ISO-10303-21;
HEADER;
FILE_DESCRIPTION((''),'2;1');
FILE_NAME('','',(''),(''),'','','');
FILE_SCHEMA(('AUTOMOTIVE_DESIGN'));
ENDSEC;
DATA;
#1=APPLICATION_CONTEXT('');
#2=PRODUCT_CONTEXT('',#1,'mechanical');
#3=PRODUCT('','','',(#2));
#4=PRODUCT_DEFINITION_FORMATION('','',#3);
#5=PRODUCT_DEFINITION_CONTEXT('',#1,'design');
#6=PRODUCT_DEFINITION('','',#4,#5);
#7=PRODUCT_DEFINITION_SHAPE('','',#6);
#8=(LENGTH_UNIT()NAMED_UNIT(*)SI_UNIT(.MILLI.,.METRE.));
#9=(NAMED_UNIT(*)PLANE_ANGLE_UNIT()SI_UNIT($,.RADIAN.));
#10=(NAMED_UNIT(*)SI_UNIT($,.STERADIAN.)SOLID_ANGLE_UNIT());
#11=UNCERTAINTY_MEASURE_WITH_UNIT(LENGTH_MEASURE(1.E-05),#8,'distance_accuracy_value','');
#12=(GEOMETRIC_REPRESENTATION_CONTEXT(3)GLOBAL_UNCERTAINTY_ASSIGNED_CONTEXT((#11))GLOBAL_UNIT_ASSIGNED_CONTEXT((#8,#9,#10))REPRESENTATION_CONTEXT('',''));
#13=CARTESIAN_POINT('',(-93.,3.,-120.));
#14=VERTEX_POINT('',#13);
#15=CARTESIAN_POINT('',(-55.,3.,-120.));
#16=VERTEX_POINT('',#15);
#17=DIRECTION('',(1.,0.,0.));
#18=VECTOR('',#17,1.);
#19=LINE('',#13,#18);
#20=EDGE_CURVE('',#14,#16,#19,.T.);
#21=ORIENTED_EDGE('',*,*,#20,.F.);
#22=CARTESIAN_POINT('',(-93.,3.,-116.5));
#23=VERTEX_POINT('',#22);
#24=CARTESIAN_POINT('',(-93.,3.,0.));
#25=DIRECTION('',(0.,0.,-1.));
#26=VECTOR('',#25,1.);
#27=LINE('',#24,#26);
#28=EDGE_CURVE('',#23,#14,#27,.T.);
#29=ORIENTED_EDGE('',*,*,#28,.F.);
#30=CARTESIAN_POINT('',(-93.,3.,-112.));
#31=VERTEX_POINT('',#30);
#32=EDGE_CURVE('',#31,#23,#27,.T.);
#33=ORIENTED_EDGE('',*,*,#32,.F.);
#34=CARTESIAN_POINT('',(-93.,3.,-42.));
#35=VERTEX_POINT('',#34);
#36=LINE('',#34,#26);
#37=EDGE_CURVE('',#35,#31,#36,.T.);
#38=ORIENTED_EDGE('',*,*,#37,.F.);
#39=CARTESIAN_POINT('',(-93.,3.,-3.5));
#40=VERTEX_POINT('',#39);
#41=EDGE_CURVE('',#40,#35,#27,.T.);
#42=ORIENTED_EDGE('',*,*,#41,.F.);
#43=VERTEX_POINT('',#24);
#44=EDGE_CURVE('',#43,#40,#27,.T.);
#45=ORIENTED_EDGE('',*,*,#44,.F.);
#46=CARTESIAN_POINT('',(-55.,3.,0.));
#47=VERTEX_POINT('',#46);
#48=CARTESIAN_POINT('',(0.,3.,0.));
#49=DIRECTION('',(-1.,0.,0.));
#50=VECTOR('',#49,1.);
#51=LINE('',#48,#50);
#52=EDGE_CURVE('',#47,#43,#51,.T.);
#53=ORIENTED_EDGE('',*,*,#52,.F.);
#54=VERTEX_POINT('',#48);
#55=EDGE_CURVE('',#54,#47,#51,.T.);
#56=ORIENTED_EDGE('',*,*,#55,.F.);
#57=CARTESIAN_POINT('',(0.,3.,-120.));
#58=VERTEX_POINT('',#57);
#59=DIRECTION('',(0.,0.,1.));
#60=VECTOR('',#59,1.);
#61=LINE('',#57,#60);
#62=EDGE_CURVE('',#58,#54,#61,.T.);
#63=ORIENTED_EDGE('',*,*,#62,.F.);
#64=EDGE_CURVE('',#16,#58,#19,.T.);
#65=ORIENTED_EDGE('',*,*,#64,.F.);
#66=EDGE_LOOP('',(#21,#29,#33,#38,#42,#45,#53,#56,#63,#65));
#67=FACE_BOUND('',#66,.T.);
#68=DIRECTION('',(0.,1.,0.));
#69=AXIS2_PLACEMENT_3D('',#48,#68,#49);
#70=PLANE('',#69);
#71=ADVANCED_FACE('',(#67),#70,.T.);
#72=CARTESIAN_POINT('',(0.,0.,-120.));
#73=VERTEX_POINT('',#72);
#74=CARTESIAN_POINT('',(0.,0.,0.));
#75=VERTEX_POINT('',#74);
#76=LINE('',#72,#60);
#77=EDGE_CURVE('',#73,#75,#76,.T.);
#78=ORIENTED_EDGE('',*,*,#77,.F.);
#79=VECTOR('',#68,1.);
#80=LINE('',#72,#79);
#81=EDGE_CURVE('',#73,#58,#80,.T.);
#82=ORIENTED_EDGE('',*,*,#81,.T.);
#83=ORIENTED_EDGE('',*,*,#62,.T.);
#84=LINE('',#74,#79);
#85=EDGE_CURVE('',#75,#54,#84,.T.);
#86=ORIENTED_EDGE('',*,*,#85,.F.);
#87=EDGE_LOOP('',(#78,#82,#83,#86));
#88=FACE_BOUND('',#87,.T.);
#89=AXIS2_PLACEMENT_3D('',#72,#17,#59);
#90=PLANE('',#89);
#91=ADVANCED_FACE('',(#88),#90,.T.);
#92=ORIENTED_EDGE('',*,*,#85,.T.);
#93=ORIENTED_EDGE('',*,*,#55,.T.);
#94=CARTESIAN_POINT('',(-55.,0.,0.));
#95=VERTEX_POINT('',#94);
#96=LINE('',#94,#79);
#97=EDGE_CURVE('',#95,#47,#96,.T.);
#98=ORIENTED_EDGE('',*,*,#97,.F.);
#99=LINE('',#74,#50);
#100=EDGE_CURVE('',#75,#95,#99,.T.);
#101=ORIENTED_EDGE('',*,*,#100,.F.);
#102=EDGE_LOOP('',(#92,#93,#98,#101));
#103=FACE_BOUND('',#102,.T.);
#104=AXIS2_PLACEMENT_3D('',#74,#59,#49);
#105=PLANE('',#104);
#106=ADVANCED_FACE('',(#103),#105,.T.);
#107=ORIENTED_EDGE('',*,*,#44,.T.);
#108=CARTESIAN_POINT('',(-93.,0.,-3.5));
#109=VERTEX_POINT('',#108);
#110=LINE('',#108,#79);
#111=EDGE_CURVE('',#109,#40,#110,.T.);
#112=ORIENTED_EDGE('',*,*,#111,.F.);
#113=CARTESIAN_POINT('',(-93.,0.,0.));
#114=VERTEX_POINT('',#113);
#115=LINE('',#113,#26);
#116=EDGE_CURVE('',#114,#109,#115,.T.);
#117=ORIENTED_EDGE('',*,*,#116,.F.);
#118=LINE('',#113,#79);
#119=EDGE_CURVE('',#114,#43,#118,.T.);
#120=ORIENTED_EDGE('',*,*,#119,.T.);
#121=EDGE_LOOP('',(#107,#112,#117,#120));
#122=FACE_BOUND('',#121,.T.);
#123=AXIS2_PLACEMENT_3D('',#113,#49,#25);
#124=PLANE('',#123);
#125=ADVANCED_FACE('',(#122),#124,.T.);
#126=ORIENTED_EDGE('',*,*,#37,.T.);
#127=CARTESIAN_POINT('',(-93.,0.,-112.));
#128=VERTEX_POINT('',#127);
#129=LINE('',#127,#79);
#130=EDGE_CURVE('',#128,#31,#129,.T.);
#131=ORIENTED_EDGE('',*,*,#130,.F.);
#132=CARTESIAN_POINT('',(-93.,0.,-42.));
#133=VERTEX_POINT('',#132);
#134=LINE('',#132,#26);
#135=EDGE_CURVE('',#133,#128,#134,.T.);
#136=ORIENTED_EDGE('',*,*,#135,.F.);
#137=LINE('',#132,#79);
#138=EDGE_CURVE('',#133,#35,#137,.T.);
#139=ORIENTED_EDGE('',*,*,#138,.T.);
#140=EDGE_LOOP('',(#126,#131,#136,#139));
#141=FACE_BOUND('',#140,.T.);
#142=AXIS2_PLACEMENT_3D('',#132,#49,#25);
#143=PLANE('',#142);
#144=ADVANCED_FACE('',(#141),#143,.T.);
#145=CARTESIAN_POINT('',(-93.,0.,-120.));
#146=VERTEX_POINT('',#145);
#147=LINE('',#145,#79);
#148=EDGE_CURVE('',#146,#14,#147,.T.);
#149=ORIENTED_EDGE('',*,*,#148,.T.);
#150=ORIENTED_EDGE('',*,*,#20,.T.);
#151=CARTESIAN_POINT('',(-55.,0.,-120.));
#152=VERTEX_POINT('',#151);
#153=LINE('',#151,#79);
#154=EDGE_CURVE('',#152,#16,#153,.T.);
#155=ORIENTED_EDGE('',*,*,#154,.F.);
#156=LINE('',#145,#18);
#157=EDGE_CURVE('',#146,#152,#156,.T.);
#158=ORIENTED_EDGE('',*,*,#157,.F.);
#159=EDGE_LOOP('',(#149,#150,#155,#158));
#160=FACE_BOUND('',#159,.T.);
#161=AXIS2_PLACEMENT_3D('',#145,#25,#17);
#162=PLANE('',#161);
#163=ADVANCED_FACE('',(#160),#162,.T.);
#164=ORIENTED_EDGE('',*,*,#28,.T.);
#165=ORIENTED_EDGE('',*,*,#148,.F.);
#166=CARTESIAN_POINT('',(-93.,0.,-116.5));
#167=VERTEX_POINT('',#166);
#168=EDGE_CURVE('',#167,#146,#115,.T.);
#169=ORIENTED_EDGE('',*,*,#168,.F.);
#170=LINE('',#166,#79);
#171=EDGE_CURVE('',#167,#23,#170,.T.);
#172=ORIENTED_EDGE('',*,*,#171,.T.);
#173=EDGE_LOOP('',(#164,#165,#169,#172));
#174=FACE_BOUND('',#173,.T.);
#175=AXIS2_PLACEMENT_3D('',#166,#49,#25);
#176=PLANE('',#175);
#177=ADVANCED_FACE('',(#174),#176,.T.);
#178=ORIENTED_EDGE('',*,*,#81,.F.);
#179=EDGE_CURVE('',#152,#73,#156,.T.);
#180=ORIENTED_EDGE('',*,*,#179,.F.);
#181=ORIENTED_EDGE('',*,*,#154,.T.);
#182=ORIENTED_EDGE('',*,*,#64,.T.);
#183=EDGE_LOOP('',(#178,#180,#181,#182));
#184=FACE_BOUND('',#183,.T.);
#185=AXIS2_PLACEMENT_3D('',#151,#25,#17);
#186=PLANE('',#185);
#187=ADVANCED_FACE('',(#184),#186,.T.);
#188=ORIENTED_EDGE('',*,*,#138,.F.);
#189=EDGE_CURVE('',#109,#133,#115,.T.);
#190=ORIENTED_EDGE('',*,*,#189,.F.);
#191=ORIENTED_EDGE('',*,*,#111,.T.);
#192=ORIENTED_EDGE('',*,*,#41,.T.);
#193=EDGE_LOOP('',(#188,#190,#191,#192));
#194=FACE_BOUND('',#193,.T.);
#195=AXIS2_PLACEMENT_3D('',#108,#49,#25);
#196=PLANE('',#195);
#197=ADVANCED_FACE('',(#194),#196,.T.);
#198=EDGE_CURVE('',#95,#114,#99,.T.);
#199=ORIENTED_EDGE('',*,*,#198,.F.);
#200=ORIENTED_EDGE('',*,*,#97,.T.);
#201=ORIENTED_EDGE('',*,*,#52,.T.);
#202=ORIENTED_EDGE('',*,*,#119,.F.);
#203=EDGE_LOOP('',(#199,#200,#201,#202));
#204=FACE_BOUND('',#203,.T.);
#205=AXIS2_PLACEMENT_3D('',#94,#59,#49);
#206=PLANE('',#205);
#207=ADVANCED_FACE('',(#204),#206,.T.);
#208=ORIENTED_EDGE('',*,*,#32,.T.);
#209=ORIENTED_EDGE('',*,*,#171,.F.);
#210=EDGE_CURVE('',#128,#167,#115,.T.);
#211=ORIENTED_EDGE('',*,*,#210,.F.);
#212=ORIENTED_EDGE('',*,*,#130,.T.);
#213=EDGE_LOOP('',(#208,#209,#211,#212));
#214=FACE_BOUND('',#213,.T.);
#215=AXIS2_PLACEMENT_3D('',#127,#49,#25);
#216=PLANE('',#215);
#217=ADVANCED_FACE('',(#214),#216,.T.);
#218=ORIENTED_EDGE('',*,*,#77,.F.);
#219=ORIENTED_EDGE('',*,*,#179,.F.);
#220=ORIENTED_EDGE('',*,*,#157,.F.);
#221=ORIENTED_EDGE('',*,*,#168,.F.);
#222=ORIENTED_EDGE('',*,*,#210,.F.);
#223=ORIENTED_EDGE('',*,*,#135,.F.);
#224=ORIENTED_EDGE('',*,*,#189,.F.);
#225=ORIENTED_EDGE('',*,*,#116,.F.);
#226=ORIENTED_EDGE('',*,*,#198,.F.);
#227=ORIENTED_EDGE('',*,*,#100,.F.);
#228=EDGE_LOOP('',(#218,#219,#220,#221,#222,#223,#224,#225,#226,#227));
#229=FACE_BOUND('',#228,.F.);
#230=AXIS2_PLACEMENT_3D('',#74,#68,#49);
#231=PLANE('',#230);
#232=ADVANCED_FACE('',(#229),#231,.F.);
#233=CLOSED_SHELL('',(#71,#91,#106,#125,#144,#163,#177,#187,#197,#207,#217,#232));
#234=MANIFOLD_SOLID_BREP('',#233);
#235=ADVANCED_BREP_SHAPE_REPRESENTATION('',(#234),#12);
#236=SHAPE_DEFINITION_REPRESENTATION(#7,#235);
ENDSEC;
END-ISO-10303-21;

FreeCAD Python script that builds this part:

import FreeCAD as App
import Part
import Sketcher
from FreeCAD import Vector


def add_polygon(sketch, points):
    """Adds a closed chain of lines whose ends are joined by coincident constraints."""
    first, n = sketch.GeometryCount, len(points)
    for a, b in zip(points, points[1:] + points[:1]):
        sketch.addGeometry(Part.LineSegment(App.Vector(*a, 0), App.Vector(*b, 0)), False)
    for i in range(n):
        sketch.addConstraint(Sketcher.Constraint("Coincident", first + i, 2, first + (i + 1) % n, 1))

doc = App.newDocument("Part")
body = doc.addObject("PartDesign::Body", "Body")

# Sketch on XZ plane
sketch1 = doc.addObject("Sketcher::SketchObject", "Sketch")
body.addObject(sketch1)
sketch1.AttachmentSupport = (doc.XZ_Plane, [""])
sketch1.MapMode = "FlatFace"
add_polygon(sketch1, [(-93, 0), (0, 0), (0, -120), (-93, -120)])  # lines 0-3
sketch1.addConstraint(Sketcher.Constraint("Horizontal", 0))
sketch1.addConstraint(Sketcher.Constraint("Vertical", 1))
sketch1.addConstraint(Sketcher.Constraint("Horizontal", 2))
sketch1.addConstraint(Sketcher.Constraint("Vertical", 3))
sketch1.addConstraint(Sketcher.Constraint("Coincident", 0, 2, -1, 1))
sketch1.addConstraint(Sketcher.Constraint("DistanceX", 0, 1, 0, 2, 93.0))
sketch1.addConstraint(Sketcher.Constraint("DistanceY", 1, 2, 1, 1, 120.0))
pad1 = doc.addObject("PartDesign::Pad", "Pad")
body.addObject(pad1)
pad1.Profile = sketch1
pad1.Length = 3
pad1.Reversed = True

doc.recompute()
